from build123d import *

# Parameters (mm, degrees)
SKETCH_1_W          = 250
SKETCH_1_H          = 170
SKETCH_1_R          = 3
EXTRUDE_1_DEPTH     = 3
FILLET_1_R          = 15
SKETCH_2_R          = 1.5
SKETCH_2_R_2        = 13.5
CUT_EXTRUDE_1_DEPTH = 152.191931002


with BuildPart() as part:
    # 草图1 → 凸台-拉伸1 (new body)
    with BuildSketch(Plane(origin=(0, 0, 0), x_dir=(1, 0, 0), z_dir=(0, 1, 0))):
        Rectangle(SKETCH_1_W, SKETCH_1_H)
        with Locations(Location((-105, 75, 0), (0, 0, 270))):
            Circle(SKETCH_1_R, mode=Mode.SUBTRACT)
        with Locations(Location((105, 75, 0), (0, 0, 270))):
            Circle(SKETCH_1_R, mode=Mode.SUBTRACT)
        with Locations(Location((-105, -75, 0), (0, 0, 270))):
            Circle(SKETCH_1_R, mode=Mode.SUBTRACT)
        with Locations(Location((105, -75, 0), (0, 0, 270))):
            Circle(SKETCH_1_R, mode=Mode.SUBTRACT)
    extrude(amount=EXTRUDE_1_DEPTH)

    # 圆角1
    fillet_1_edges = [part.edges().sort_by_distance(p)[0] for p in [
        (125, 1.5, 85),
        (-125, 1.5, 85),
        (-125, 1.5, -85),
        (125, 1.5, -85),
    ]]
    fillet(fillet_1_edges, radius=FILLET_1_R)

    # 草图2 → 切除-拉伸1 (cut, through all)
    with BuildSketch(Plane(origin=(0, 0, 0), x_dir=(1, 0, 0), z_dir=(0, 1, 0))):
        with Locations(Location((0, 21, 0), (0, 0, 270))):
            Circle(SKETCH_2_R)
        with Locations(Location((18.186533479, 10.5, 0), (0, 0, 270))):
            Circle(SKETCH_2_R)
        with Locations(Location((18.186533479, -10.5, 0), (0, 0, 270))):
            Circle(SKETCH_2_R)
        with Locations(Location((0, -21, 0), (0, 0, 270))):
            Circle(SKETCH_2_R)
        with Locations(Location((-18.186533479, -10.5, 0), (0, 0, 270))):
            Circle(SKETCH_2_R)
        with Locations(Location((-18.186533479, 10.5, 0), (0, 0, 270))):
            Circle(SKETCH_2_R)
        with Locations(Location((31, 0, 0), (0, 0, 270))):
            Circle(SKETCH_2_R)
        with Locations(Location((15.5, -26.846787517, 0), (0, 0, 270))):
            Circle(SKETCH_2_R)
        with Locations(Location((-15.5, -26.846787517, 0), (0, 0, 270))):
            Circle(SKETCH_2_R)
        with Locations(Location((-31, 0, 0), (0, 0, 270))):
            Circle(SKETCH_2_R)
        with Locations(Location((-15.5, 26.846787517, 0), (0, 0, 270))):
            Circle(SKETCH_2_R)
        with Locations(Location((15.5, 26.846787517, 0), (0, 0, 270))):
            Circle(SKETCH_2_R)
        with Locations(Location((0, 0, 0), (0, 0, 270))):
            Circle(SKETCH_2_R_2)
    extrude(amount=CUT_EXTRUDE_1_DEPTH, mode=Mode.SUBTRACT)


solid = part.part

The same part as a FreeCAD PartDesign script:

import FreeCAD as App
import Part
import Sketcher

V = App.Vector


def edges_at(feature, points):
    """Names of the edges that pass closest to the given points."""
    edges = feature.Shape.Edges
    near = lambda p: min(range(len(edges)), key=lambda i: edges[i].distToShape(Part.Vertex(*p))[0])
    return sorted({f"Edge{near(p) + 1}" for p in points})


def add_polygon(sketch, points):
    """Adds a closed chain of lines whose ends are joined by coincident constraints."""
    first, n = sketch.GeometryCount, len(points)
    for a, b in zip(points, points[1:] + points[:1]):
        sketch.addGeometry(Part.LineSegment(App.Vector(*a, 0), App.Vector(*b, 0)), False)
    for i in range(n):
        sketch.addConstraint(Sketcher.Constraint("Coincident", first + i, 2, first + (i + 1) % n, 1))

doc = App.newDocument("Part")
params = doc.addObject("Spreadsheet::Sheet", "Params")
for row, (alias, value) in enumerate([
    ("sketch1_diameter", "6 mm"),
    ("sketch1_width", "250 mm"),
    ("sketch1_height", "170 mm"),
    ("pad1_length", "3 mm"),
    ("fillet_radius", "15 mm"),
    ("sketch2_diameter", "3 mm"),
    ("sketch2_diameter2", "27 mm"),
], start=1):
    params.set(f"A{row}", alias)
    params.set(f"B{row}", "=" + value)
    params.setAlias(f"B{row}", alias)

body = doc.addObject("PartDesign::Body", "Body")

sketch1 = doc.addObject("Sketcher::SketchObject", "Sketch")
body.addObject(sketch1)
sketch1.AttachmentSupport = (doc.XZ_Plane, [""])
sketch1.MapMode = "FlatFace"
add_polygon(sketch1, [(-125, -85), (-125, 85), (125, 85), (125, -85)])
sketch1.addGeometry(Part.Circle(V(-105, 75, 0), V(0, 0, 1), 3), False)
sketch1.addGeometry(Part.Circle(V(105, 75, 0), V(0, 0, 1), 3), False)
sketch1.addGeometry(Part.Circle(V(-105, -75, 0), V(0, 0, 1), 3), False)
sketch1.addGeometry(Part.Circle(V(105, -75, 0), V(0, 0, 1), 3), False)
sketch1.addConstraint(Sketcher.Constraint("Vertical", 0))
sketch1.addConstraint(Sketcher.Constraint("Horizontal", 1))
sketch1.addConstraint(Sketcher.Constraint("Vertical", 2))
sketch1.addConstraint(Sketcher.Constraint("Horizontal", 3))
sketch1.addConstraint(Sketcher.Constraint("Equal", 4, 5))
sketch1.addConstraint(Sketcher.Constraint("Equal", 5, 6))
sketch1.addConstraint(Sketcher.Constraint("Equal", 6, 7))
sketch1.addConstraint(Sketcher.Constraint("Symmetric", 5, 3, 6, 3, -1, 1))
sketch1.addConstraint(Sketcher.Constraint("Symmetric", 4, 3, 7, 3, -1, 1))
sketch1.addConstraint(Sketcher.Constraint("Symmetric", 0, 2, 2, 2, -1, 1))
sketch1.addConstraint(Sketcher.Constraint("Symmetric", 4, 3, 5, 3, -2))
sketch1.addConstraint(Sketcher.Constraint("Diameter", 4, 6.0))
sketch1.addConstraint(Sketcher.Constraint("DistanceX", 1, 1, 1, 2, 250.0))
sketch1.addConstraint(Sketcher.Constraint("DistanceY", 0, 1, 0, 2, 170.0))
sketch1.addConstraint(Sketcher.Constraint("DistanceX", 4, 3, -1, 1, 105.0))
sketch1.addConstraint(Sketcher.Constraint("DistanceY", -1, 1, 4, 3, 75.0))
sketch1.setExpression("Constraints[15]", "Params.sketch1_diameter")
sketch1.setExpression("Constraints[16]", "Params.sketch1_width")
sketch1.setExpression("Constraints[17]", "Params.sketch1_height")
pad1 = doc.addObject("PartDesign::Pad", "Pad")
body.addObject(pad1)
pad1.Profile = sketch1
pad1.setExpression("Length", "Params.pad1_length")
pad1.Reversed = True
doc.recompute()

fillet = doc.addObject("PartDesign::Fillet", "Fillet")
body.addObject(fillet)
fillet.Base = (pad1, edges_at(pad1, [
    (125, 1.5, 85),
    (-125, 1.5, 85),
    (-125, 1.5, -85),
    (125, 1.5, -85),
]))
fillet.setExpression("Radius", "Params.fillet_radius")

sketch2 = doc.addObject("Sketcher::SketchObject", "Sketch001")
body.addObject(sketch2)
sketch2.AttachmentSupport = (doc.XZ_Plane, [""])
sketch2.MapMode = "FlatFace"
sketch2.addGeometry(Part.Circle(V(0, -21, 0), V(0, 0, 1), 1.5), False)
sketch2.addGeometry(Part.Circle(V(18.2, -10.5, 0), V(0, 0, 1), 1.5), False)
sketch2.addGeometry(Part.Circle(V(18.2, 10.5, 0), V(0, 0, 1), 1.5), False)
sketch2.addGeometry(Part.Circle(V(0, 21, 0), V(0, 0, 1), 1.5), False)
sketch2.addGeometry(Part.Circle(V(-18.2, 10.5, 0), V(0, 0, 1), 1.5), False)
sketch2.addGeometry(Part.Circle(V(-18.2, -10.5, 0), V(0, 0, 1), 1.5), False)
sketch2.addGeometry(Part.Circle(V(31, 0, 0), V(0, 0, 1), 1.5), False)
sketch2.addGeometry(Part.Circle(V(15.5, 26.8, 0), V(0, 0, 1), 1.5), False)
sketch2.addGeometry(Part.Circle(V(-15.5, 26.8, 0), V(0, 0, 1), 1.5), False)
sketch2.addGeometry(Part.Circle(V(-31, 0, 0), V(0, 0, 1), 1.5), False)
sketch2.addGeometry(Part.Circle(V(-15.5, -26.8, 0), V(0, 0, 1), 1.5), False)
sketch2.addGeometry(Part.Circle(V(15.5, -26.8, 0), V(0, 0, 1), 1.5), False)
sketch2.addGeometry(Part.Circle(V(0, 0, 0), V(0, 0, 1), 13.5), False)
sketch2.addConstraint(Sketcher.Constraint("Coincident", 12, 3, -1, 1))
sketch2.addConstraint(Sketcher.Constraint("Equal", 0, 1))
sketch2.addConstraint(Sketcher.Constraint("Equal", 1, 2))
sketch2.addConstraint(Sketcher.Constraint("Equal", 2, 3))
sketch2.addConstraint(Sketcher.Constraint("Equal", 3, 4))
sketch2.addConstraint(Sketcher.Constraint("Equal", 4, 5))
sketch2.addConstraint(Sketcher.Constraint("Equal", 5, 6))
sketch2.addConstraint(Sketcher.Constraint("Equal", 6, 7))
sketch2.addConstraint(Sketcher.Constraint("Equal", 7, 8))
sketch2.addConstraint(Sketcher.Constraint("Equal", 8, 9))
sketch2.addConstraint(Sketcher.Constraint("Equal", 9, 10))
sketch2.addConstraint(Sketcher.Constraint("Equal", 10, 11))
sketch2.addConstraint(Sketcher.Constraint("Symmetric", 0, 3, 3, 3, -1, 1))
sketch2.addConstraint(Sketcher.Constraint("Symmetric", 1, 3, 4, 3, -1, 1))
sketch2.addConstraint(Sketcher.Constraint("Symmetric", 2, 3, 5, 3, -1, 1))
sketch2.addConstraint(Sketcher.Constraint("Symmetric", 6, 3, 9, 3, -1, 1))
sketch2.addConstraint(Sketcher.Constraint("Symmetric", 7, 3, 10, 3, -1, 1))
sketch2.addConstraint(Sketcher.Constraint("Symmetric", 8, 3, 11, 3, -1, 1))
sketch2.addConstraint(Sketcher.Constraint("Symmetric", 2, 3, 4, 3, -2))
sketch2.addConstraint(Sketcher.Constraint("Symmetric", 7, 3, 8, 3, -2))
sketch2.addConstraint(Sketcher.Constraint("PointOnObject", 0, 3, -2))
sketch2.addConstraint(Sketcher.Constraint("PointOnObject", 6, 3, -1))
sketch2.addConstraint(Sketcher.Constraint("Diameter", 0, 3.0))
sketch2.addConstraint(Sketcher.Constraint("Diameter", 12, 27.0))
sketch2.addConstraint(Sketcher.Constraint("DistanceY", 0, 3, -1, 1, 21.0))
sketch2.addConstraint(Sketcher.Constraint("DistanceX", -1, 1, 6, 3, 31.0))
sketch2.addConstraint(Sketcher.Constraint("DistanceY", 1, 3, 2, 3, 21.0))
sketch2.addConstraint(Sketcher.Constraint("DistanceX", 8, 3, 7, 3, 31.0))
sketch2.addConstraint(Sketcher.Constraint("DistanceX", -1, 1, 1, 3, 18.186533))
sketch2.addConstraint(Sketcher.Constraint("DistanceY", -1, 1, 7, 3, 26.846788))
sketch2.setExpression("Constraints[22]", "Params.sketch2_diameter")
sketch2.setExpression("Constraints[23]", "Params.sketch2_diameter2")
pocket1 = doc.addObject("PartDesign::Pocket", "Pocket")
body.addObject(pocket1)
pocket1.Profile = sketch2
pocket1.Type = "ThroughAll"

doc.recompute()
